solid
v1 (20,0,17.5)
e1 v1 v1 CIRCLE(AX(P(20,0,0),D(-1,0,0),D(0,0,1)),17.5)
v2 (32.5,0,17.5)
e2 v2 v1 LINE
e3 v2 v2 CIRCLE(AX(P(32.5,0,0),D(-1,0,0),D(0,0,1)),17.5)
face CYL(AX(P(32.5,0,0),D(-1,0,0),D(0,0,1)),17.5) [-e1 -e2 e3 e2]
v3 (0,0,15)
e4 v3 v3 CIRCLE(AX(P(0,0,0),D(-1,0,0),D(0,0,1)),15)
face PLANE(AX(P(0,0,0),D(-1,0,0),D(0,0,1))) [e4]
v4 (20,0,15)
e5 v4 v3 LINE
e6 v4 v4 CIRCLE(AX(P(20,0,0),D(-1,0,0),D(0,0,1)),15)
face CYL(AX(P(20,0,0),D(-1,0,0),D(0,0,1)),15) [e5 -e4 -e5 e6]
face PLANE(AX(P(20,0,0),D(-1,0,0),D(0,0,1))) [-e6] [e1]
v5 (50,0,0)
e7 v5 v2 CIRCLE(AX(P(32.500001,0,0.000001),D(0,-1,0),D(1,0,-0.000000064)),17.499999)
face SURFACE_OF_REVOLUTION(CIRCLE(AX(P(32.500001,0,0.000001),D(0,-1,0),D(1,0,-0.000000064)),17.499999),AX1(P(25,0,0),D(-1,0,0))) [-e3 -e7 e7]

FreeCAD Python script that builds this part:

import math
import FreeCAD as App
import Part
import Sketcher
from FreeCAD import Vector

doc = App.newDocument("Part")
body = doc.addObject("PartDesign::Body", "Body")

sketch1 = body.newObject("Sketcher::SketchObject", "Sketch")
sketch1.AttachmentSupport = (doc.getObject("XZ_Plane"), [""])
sketch1.MapMode = "FlatFace"
sketch1.addGeometry([
    Part.LineSegment(Vector(20, 15, 0), Vector(0, 15, 0)),
    Part.LineSegment(Vector(0, 15, 0), Vector(0, 0, 0)),
    Part.LineSegment(Vector(0, 0, 0), Vector(50, 0, 0)),
    Part.ArcOfCircle(Part.Circle(Vector(32.5, 0, 0), Vector(0, 0, 1), 17.5), math.radians(0), math.radians(90)),
    Part.LineSegment(Vector(32.5, 17.5, 0), Vector(20, 17.5, 0)),
    Part.LineSegment(Vector(20, 17.5, 0), Vector(20, 15, 0)),
], False)
sketch1.addConstraint([
    Sketcher.Constraint("Coincident", 0, 2, 1, 1),
    Sketcher.Constraint("Coincident", 1, 2, 2, 1),
    Sketcher.Constraint("Coincident", 2, 2, 3, 1),
    Sketcher.Constraint("Tangent", 3, 2, 4, 1),
    Sketcher.Constraint("Coincident", 4, 2, 5, 1),
    Sketcher.Constraint("Coincident", 5, 2, 0, 1),
    Sketcher.Constraint("Horizontal", 0),
    Sketcher.Constraint("Vertical", 1),
    Sketcher.Constraint("Horizontal", 2),
    Sketcher.Constraint("Horizontal", 4),
    Sketcher.Constraint("Vertical", 5),
    Sketcher.Constraint("Coincident", 1, 2, -1, 1),
    Sketcher.Constraint("PointOnObject", 3, 3, -1),
    Sketcher.Constraint("Radius", 3, 17.499999),
    Sketcher.Constraint("DistanceX", 0, 2, 0, 1, 20.0),
    Sketcher.Constraint("DistanceX", 2, 1, 2, 2, 50.0),
    Sketcher.Constraint("DistanceY", 1, 2, 1, 1, 15.0),
])
revolution = body.newObject("PartDesign::Revolution", "Revolution")
revolution.Profile = sketch1
revolution.ReferenceAxis = (sketch1, ["H_Axis"])
revolution.Angle = 360

doc.recompute()
